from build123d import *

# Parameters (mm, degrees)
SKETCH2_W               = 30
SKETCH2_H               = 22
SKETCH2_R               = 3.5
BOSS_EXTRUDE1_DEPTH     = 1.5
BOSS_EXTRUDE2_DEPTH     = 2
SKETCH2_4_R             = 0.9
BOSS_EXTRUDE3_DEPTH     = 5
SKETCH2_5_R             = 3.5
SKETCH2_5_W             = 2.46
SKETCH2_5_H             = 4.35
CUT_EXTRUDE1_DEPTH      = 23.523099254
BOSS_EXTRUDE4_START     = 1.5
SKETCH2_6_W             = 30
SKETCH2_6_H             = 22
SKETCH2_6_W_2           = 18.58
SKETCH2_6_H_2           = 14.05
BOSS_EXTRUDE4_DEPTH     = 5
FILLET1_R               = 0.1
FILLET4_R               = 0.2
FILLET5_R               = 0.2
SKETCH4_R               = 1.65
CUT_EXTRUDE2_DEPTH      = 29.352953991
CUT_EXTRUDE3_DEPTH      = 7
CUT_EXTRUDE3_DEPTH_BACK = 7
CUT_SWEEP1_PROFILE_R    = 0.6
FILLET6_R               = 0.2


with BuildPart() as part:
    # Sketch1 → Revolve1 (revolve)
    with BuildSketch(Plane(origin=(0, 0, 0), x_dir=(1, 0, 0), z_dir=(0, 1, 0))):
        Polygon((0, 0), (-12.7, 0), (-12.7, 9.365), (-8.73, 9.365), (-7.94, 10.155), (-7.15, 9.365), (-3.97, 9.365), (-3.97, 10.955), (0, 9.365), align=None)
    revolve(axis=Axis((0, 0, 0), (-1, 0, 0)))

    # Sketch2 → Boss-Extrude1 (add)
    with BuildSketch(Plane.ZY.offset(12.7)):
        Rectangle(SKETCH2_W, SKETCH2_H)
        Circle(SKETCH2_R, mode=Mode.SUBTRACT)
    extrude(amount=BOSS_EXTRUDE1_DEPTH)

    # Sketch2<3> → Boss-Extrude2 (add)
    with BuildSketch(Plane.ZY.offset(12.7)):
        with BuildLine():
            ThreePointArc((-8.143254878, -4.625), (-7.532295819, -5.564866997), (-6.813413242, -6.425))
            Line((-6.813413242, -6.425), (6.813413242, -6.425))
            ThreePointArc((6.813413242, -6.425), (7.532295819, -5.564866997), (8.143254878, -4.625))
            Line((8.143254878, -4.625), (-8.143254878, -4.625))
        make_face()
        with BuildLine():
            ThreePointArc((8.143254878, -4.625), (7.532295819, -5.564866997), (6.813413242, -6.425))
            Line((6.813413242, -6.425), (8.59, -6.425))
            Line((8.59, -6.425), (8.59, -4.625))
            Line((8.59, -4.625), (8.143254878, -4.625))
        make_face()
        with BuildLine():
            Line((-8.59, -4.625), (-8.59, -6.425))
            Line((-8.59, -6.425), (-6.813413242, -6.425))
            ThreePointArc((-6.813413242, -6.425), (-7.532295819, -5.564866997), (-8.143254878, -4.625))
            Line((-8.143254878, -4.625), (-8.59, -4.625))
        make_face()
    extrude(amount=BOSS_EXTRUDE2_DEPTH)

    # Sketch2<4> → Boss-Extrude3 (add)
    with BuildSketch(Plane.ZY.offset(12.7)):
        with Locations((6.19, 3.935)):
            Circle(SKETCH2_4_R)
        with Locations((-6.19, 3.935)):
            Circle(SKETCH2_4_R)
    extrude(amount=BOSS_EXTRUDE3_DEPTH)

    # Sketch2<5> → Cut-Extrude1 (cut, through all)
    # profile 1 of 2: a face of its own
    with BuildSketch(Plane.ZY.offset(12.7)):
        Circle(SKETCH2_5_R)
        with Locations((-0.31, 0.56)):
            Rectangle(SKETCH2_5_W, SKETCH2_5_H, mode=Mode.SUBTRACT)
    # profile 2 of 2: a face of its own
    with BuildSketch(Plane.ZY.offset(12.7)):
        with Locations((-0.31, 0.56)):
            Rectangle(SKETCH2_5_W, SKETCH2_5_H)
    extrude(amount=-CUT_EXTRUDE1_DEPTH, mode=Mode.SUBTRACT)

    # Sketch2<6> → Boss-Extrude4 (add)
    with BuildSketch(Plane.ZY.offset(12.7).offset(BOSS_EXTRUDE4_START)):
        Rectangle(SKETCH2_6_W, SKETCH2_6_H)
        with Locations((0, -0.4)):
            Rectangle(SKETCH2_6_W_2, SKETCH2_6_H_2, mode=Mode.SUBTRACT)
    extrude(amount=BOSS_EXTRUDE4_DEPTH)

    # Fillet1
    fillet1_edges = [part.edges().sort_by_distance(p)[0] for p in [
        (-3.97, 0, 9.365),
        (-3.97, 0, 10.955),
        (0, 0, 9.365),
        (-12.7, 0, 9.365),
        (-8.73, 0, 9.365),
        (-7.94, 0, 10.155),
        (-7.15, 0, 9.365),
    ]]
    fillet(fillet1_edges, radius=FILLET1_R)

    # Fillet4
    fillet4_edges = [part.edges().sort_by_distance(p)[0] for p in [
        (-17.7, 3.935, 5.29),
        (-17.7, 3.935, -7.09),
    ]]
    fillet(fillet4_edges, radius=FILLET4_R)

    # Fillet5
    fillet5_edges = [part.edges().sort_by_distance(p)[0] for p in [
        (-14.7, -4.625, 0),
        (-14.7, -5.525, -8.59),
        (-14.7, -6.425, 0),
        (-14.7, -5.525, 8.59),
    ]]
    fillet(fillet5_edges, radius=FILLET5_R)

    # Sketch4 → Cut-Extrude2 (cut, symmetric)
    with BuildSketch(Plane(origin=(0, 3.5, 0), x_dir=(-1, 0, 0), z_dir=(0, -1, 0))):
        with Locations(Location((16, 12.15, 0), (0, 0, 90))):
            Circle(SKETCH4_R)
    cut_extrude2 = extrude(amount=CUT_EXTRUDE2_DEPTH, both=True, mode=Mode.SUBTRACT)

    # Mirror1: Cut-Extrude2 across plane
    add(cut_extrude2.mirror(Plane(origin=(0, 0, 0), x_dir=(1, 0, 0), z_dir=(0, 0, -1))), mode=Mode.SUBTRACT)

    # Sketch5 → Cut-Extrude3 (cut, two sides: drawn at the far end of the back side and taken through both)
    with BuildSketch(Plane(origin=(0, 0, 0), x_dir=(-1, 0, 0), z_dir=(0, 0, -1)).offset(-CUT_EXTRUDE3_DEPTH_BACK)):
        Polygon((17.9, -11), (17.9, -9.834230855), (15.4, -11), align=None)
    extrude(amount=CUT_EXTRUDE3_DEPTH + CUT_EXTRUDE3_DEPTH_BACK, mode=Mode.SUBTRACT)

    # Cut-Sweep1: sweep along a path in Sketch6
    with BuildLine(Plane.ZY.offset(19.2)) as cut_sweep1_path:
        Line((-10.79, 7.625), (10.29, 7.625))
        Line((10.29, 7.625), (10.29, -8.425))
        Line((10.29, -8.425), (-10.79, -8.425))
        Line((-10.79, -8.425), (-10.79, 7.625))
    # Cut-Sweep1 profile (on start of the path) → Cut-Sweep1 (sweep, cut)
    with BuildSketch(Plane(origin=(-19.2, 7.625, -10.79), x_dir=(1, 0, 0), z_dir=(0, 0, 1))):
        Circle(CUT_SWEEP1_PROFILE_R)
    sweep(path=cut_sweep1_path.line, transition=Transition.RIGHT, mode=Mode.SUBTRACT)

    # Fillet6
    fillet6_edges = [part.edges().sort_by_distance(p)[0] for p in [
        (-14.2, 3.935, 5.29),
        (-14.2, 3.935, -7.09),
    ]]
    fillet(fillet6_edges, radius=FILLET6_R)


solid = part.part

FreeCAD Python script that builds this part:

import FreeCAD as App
import Part
import Sketcher
from FreeCAD import Vector
Q = App.Units.Quantity


def edges_at(feature, points):
    """Names of the edges that pass closest to the given points."""
    edges = feature.Shape.Edges
    near = lambda p: min(range(len(edges)), key=lambda i: edges[i].distToShape(Part.Vertex(*p))[0])
    return sorted({f"Edge{near(p) + 1}" for p in points})


def add_polygon(sketch, points):
    """Adds a closed chain of lines whose ends are joined by coincident constraints."""
    first, n = sketch.GeometryCount, len(points)
    for a, b in zip(points, points[1:] + points[:1]):
        sketch.addGeometry(Part.LineSegment(App.Vector(*a, 0), App.Vector(*b, 0)), False)
    for i in range(n):
        sketch.addConstraint(Sketcher.Constraint("Coincident", first + i, 2, first + (i + 1) % n, 1))

doc = App.newDocument("Part")
body = doc.addObject("PartDesign::Body", "Body")

# Sketch on XZ plane
sketch1 = doc.addObject("Sketcher::SketchObject", "Sketch")
body.addObject(sketch1)
sketch1.AttachmentSupport = (doc.XZ_Plane, [""])
sketch1.MapMode = "FlatFace"
add_polygon(sketch1, [(-12.7, 0), (0, 0), (0, -9.4), (-4, -11), (-4, -9.4), (-7.2, -9.4), (-7.9, -10.2), (-8.7, -9.4), (-12.7, -9.4)])  # lines 0-8
sketch1.addConstraint([
    Sketcher.Constraint("Horizontal", 0),
    Sketcher.Constraint("Vertical", 1),
    Sketcher.Constraint("Vertical", 3),
    Sketcher.Constraint("Horizontal", 4),
    Sketcher.Constraint("Horizontal", 7),
    Sketcher.Constraint("Vertical", 8),
    Sketcher.Constraint("Coincident", 0, 2, -1, 1),
    Sketcher.Constraint("Perpendicular", 5, 6),
    Sketcher.Constraint("Horizontal", 1, 2, 3, 2),
    Sketcher.Constraint("Horizontal", 4, 2, 6, 2),
    Sketcher.Constraint("Equal", 5, 6),
    Sketcher.Constraint("DistanceX", 0, 1, 0, 2, 12.7),
    Sketcher.Constraint("DistanceX", 4, 2, 4, 1, 3.18),
    Sketcher.Constraint("DistanceX", 7, 2, 7, 1, 3.97),
    Sketcher.Constraint("DistanceY", 3, 1, 3, 2, 1.59),
    Sketcher.Constraint("DistanceY", 2, 2, 5, 2, 0.8),
    Sketcher.Constraint("DistanceY", 1, 2, 1, 1, 9.365),
])
revolution = doc.addObject("PartDesign::Revolution", "Revolution")
body.addObject(revolution)
revolution.Profile = sketch1
revolution.ReferenceAxis = (sketch1, ["H_Axis"])
revolution.Angle = 360

# Sketch on YZ plane
sketch2 = doc.addObject("Sketcher::SketchObject", "Sketch001")
body.addObject(sketch2)
sketch2.AttachmentSupport = (doc.YZ_Plane, [""])
sketch2.MapMode = "FlatFace"
sketch2.AttachmentOffset = App.Placement(Vector(0, 0, -12.7), App.Rotation())
add_polygon(sketch2, [(11, -15), (-11, -15), (-11, 15), (11, 15)])  # lines 0-3
sketch2.addGeometry(Part.Circle(Vector(0, 0, 0), Vector(0, 0, 1), 3.5), False)  # 4
sketch2.addConstraint([
    Sketcher.Constraint("Horizontal", 0),
    Sketcher.Constraint("Vertical", 1),
    Sketcher.Constraint("Horizontal", 2),
    Sketcher.Constraint("Vertical", 3),
    Sketcher.Constraint("Coincident", 4, 3, -1, 1),
    Sketcher.Constraint("Symmetric", 0, 2, 2, 2, -1, 1),
    Sketcher.Constraint("Diameter", 4, 7.0),
    Sketcher.Constraint("DistanceX", 0, 2, 0, 1, 22.0),
    Sketcher.Constraint("DistanceY", 1, 1, 1, 2, 30.0),
])
pad1 = doc.addObject("PartDesign::Pad", "Pad")
body.addObject(pad1)
pad1.Profile = sketch2
pad1.Length = 1.5
pad1.Reversed = True

# Sketch on YZ plane
sketch3 = doc.addObject("Sketcher::SketchObject", "Sketch002")
body.addObject(sketch3)
sketch3.AttachmentSupport = (doc.YZ_Plane, [""])
sketch3.MapMode = "FlatFace"
sketch3.AttachmentOffset = App.Placement(Vector(0, 0, -12.7), App.Rotation())
add_polygon(sketch3, [(-6.4, 8.6), (-4.6, 8.6), (-4.6, -8.6), (-6.4, -8.6)])  # lines 0-3
sketch3.addConstraint([
    Sketcher.Constraint("Horizontal", 0),
    Sketcher.Constraint("Vertical", 1),
    Sketcher.Constraint("Horizontal", 2),
    Sketcher.Constraint("Vertical", 3),
    Sketcher.Constraint("DistanceX", 0, 1, 0, 2, 1.8),
    Sketcher.Constraint("DistanceY", 1, 2, 1, 1, 17.18),
    Sketcher.Constraint("DistanceY", -1, 1, 0, 2, 8.59),
    Sketcher.Constraint("DistanceX", 0, 2, -1, 1, 4.625),
])
pad2 = doc.addObject("PartDesign::Pad", "Pad001")
body.addObject(pad2)
pad2.Profile = sketch3
pad2.Length = 2
pad2.Reversed = True

# Sketch on YZ plane
sketch4 = doc.addObject("Sketcher::SketchObject", "Sketch003")
body.addObject(sketch4)
sketch4.AttachmentSupport = (doc.YZ_Plane, [""])
sketch4.MapMode = "FlatFace"
sketch4.AttachmentOffset = App.Placement(Vector(0, 0, -12.7), App.Rotation())
sketch4.addGeometry([
    Part.Circle(Vector(3.9, 6.2, 0), Vector(0, 0, 1), 0.9),
    Part.Circle(Vector(3.9, -6.2, 0), Vector(0, 0, 1), 0.9),
], False)
sketch4.addConstraint([
    Sketcher.Constraint("Equal", 0, 1),
    Sketcher.Constraint("Symmetric", 0, 3, 1, 3, -1),
    Sketcher.Constraint("Diameter", 0, 1.8),
    Sketcher.Constraint("DistanceY", -1, 1, 0, 3, 6.19),
    Sketcher.Constraint("DistanceX", -1, 1, 0, 3, 3.935),
])
pad3 = doc.addObject("PartDesign::Pad", "Pad002")
body.addObject(pad3)
pad3.Profile = sketch4
pad3.Length = 5
pad3.Reversed = True

# Sketch on YZ plane
sketch5 = doc.addObject("Sketcher::SketchObject", "Sketch004")
body.addObject(sketch5)
sketch5.AttachmentSupport = (doc.YZ_Plane, [""])
sketch5.MapMode = "FlatFace"
sketch5.AttachmentOffset = App.Placement(Vector(0, 0, -12.7), App.Rotation())
sketch5.addGeometry(Part.Circle(Vector(0, 0, 0), Vector(0, 0, 1), 3.5), False)
sketch5.addConstraint([
    Sketcher.Constraint("Coincident", 0, 3, -1, 1),
    Sketcher.Constraint("Diameter", 0, 7.0),
])
pocket1 = doc.addObject("PartDesign::Pocket", "Pocket")
body.addObject(pocket1)
pocket1.Profile = sketch5
pocket1.Length = 23.523099
pocket1.Reversed = True

# Sketch on YZ plane
sketch6 = doc.addObject("Sketcher::SketchObject", "Sketch005")
body.addObject(sketch6)
sketch6.AttachmentSupport = (doc.YZ_Plane, [""])
sketch6.MapMode = "FlatFace"
sketch6.AttachmentOffset = App.Placement(Vector(0, 0, -14.2), App.Rotation())
add_polygon(sketch6, [(11, -15), (-11, -15), (-11, 15), (11, 15)])  # lines 0-3
add_polygon(sketch6, [(-7, 9), (-7, -9), (7, -9), (7, 9)])  # lines 4-7
sketch6.addConstraint([
    Sketcher.Constraint("Horizontal", 0),
    Sketcher.Constraint("Vertical", 1),
    Sketcher.Constraint("Horizontal", 2),
    Sketcher.Constraint("Vertical", 3),
    Sketcher.Constraint("Vertical", 4),
    Sketcher.Constraint("Horizontal", 5),
    Sketcher.Constraint("Vertical", 6),
    Sketcher.Constraint("Horizontal", 7),
    Sketcher.Constraint("Symmetric", 0, 2, 2, 2, -1, 1),
    Sketcher.Constraint("DistanceX", 0, 2, 0, 1, 22.0),
    Sketcher.Constraint("DistanceY", 1, 1, 1, 2, 30.0),
    Sketcher.Constraint("DistanceX", 5, 1, 5, 2, 14.05),
    Sketcher.Constraint("DistanceY", 4, 2, 4, 1, 18.58),
    Sketcher.Constraint("DistanceY", 4, 2, -1, 1, 9.29),
    Sketcher.Constraint("DistanceX", 4, 2, -1, 1, 7.425),
])
pad4 = doc.addObject("PartDesign::Pad", "Pad003")
body.addObject(pad4)
pad4.Profile = sketch6
pad4.Length = 5
pad4.Reversed = True
doc.recompute()

fillet = doc.addObject("PartDesign::Fillet", "Fillet")
body.addObject(fillet)
fillet.Base = (pad4, edges_at(pad4, [
    (-3.97, 0, 9.365),
    (-3.97, 0, 10.955),
    (0, 0, 9.365),
    (-12.7, 0, 9.365),
    (-8.73, 0, 9.365),
    (-7.94, 0, 10.155),
    (-7.15, 0, 9.365),
]))
fillet.Radius = 0.1
doc.recompute()

fillet2 = doc.addObject("PartDesign::Fillet", "Fillet001")
body.addObject(fillet2)
fillet2.Base = (fillet, edges_at(fillet, [(-17.7, 3.935, 5.29), (-17.7, 3.935, -7.09)]))
fillet2.Radius = 0.2
doc.recompute()

fillet3 = doc.addObject("PartDesign::Fillet", "Fillet002")
body.addObject(fillet3)
fillet3.Base = (fillet2, edges_at(fillet2, [
    (-14.7, -4.625, 0),
    (-14.7, -5.525, -8.59),
    (-14.7, -6.425, 0),
    (-14.7, -5.525, 8.59),
]))
fillet3.Radius = 0.2

# Sketch on XZ plane
sketch7 = doc.addObject("Sketcher::SketchObject", "Sketch006")
body.addObject(sketch7)
sketch7.AttachmentSupport = (doc.XZ_Plane, [""])
sketch7.MapMode = "FlatFace"
sketch7.AttachmentOffset = App.Placement(Vector(0, 0, -3.5), App.Rotation())
sketch7.addGeometry(Part.Circle(Vector(-16, -12.2, 0), Vector(0, 0, 1), 1.6), False)
sketch7.addConstraint([
    Sketcher.Constraint("Diameter", 0, 3.3),
    Sketcher.Constraint("DistanceX", 0, 3, -1, 1, 16.0),
    Sketcher.Constraint("DistanceY", 0, 3, -1, 1, 12.15),
])
pocket2 = doc.addObject("PartDesign::Pocket", "Pocket001")
body.addObject(pocket2)
pocket2.Profile = sketch7
pocket2.Length = 58.705908
pocket2.Midplane = True
doc.recompute()

mirrored = doc.addObject("PartDesign::Mirrored", "Mirrored")
body.addObject(mirrored)
mirrored.Originals = [pocket2]
mirrored.MirrorPlane = (doc.XY_Plane, [""])
body.Tip = mirrored

# Sketch on XY plane
sketch8 = doc.addObject("Sketcher::SketchObject", "Sketch007")
body.addObject(sketch8)
sketch8.AttachmentSupport = (doc.XY_Plane, [""])
sketch8.MapMode = "FlatFace"
add_polygon(sketch8, [(-17.9, -11), (-17.9, -9.8), (-15.4, -11)])  # lines 0-2
sketch8.addConstraint([
    Sketcher.Constraint("Vertical", 0),
    Sketcher.Constraint("Horizontal", 2),
    Sketcher.Constraint("Angle", 1, Q("-25 deg")),
    Sketcher.Constraint("DistanceX", 2, 2, 2, 1, 2.5),
    Sketcher.Constraint("DistanceY", 1, 2, -1, 1, 11.0),
    Sketcher.Constraint("DistanceX", 0, 2, -1, 1, 17.9),
])
pocket3 = doc.addObject("PartDesign::Pocket", "Pocket002")
body.addObject(pocket3)
pocket3.Profile = sketch8
pocket3.Type = "TwoLengths"
pocket3.Length = 7
pocket3.Length2 = 7

# Sketch on XY plane
sketch9 = doc.addObject("Sketcher::SketchObject", "Sketch008")
body.addObject(sketch9)
sketch9.AttachmentSupport = (doc.XY_Plane, [""])
sketch9.MapMode = "FlatFace"
sketch9.AttachmentOffset = App.Placement(Vector(0, 0, -10.79), App.Rotation())
sketch9.addGeometry(Part.Circle(Vector(-19.2, 7.6, 0), Vector(0, 0, 1), 0.6), False)
sketch9.addConstraint([
    Sketcher.Constraint("Diameter", 0, 1.2),
    Sketcher.Constraint("DistanceX", 0, 3, -1, 1, 19.2),
    Sketcher.Constraint("DistanceY", -1, 1, 0, 3, 7.625),
])

# Sketch on YZ plane
sketch10 = doc.addObject("Sketcher::SketchObject", "Sketch009")
body.addObject(sketch10)
sketch10.AttachmentSupport = (doc.YZ_Plane, [""])
sketch10.MapMode = "FlatFace"
sketch10.AttachmentOffset = App.Placement(Vector(0, 0, -19.2), App.Rotation())
add_polygon(sketch10, [(8, -11), (8, 10), (-8, 10), (-8, -11)])  # lines 0-3
sketch10.addConstraint([
    Sketcher.Constraint("Vertical", 0),
    Sketcher.Constraint("Horizontal", 1),
    Sketcher.Constraint("Vertical", 2),
    Sketcher.Constraint("Horizontal", 3),
    Sketcher.Constraint("DistanceX", 1, 2, 1, 1, 16.05),
    Sketcher.Constraint("DistanceY", 0, 1, 0, 2, 21.08),
    Sketcher.Constraint("DistanceY", -1, 1, 0, 2, 10.29),
    Sketcher.Constraint("DistanceX", -1, 1, 0, 2, 7.625),
])
doc.recompute()

subtractivepipe = doc.addObject("PartDesign::SubtractivePipe", "SubtractivePipe")
body.addObject(subtractivepipe)
subtractivepipe.Profile = sketch9
subtractivepipe.Spine = (sketch10, ["Edge1", "Edge2", "Edge3", "Edge4"])
subtractivepipe.Transition = "Right corner"
doc.recompute()

fillet4 = doc.addObject("PartDesign::Fillet", "Fillet003")
body.addObject(fillet4)
fillet4.Base = (subtractivepipe, edges_at(subtractivepipe, [(-14.2, 3.935, 5.29), (-14.2, 3.935, -7.09)]))
fillet4.Radius = 0.2

doc.recompute()
